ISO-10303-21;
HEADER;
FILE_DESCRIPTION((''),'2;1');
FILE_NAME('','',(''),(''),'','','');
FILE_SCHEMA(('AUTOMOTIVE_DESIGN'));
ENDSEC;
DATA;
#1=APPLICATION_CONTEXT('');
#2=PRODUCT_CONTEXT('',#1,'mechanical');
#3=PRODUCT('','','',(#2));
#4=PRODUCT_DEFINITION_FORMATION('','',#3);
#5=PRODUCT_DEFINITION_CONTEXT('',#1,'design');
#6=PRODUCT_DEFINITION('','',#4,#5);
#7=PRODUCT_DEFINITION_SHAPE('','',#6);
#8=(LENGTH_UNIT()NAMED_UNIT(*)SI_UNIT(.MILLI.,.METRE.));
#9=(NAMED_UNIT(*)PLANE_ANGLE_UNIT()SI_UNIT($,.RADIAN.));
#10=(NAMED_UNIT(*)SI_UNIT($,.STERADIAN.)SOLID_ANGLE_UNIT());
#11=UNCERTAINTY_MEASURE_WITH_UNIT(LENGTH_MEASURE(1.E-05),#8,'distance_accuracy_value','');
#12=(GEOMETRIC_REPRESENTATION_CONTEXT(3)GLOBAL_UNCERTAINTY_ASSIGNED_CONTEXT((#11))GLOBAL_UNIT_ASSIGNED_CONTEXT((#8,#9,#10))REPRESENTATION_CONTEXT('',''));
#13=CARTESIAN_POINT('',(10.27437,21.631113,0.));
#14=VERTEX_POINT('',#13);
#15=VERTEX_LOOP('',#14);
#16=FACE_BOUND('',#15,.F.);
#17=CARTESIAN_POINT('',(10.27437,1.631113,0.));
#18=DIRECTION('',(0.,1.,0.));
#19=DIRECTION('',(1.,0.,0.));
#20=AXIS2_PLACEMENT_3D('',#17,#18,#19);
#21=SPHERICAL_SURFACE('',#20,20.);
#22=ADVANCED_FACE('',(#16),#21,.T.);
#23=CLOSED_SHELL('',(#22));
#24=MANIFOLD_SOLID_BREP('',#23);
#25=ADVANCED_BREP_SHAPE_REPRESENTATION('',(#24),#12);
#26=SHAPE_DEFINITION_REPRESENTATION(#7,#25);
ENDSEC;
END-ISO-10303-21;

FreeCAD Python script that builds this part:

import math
import FreeCAD as App
import Part
import Sketcher

V = App.Vector
Q = App.Units.Quantity

doc = App.newDocument("Part")
params = doc.addObject("Spreadsheet::Sheet", "Params")
for row, (alias, value) in enumerate([
    ("sketch1_radius", "20 mm"),
    ("revolution_angle", "360 deg"),
], start=1):
    params.set(f"A{row}", alias)
    params.set(f"B{row}", "=" + value)
    params.setAlias(f"B{row}", alias)

body = doc.addObject("PartDesign::Body", "Body")

# Sketch on XY plane
sketch1 = doc.addObject("Sketcher::SketchObject", "Sketch")
body.addObject(sketch1)
sketch1.AttachmentSupport = (doc.XY_Plane, [""])
sketch1.MapMode = "FlatFace"
sketch1.addGeometry([
    Part.LineSegment(V(10.27437, 21.631113, 0), V(10.27437, -18.368887, 0)),
    Part.ArcOfCircle(Part.Circle(V(10.27437, 1.631113, 0), V(0, 0, 1), 20), math.radians(-90), math.radians(90)),
], False)
sketch1.addGeometry(Part.LineSegment(V(10.27437, 21.631113, 0), V(10.27437, -18.368887, 0)), True)  # axis
sketch1.addConstraint([
    Sketcher.Constraint("Coincident", 0, 1, 1, 2),
    Sketcher.Constraint("Coincident", 1, 1, 0, 2),
    Sketcher.Constraint("Vertical", 0),
    Sketcher.Constraint("Vertical", 2),
    Sketcher.Constraint("Coincident", 2, 1, 0, 1),
    Sketcher.Constraint("Vertical", 1, 3, 0, 1),
    Sketcher.Constraint("Equal", 0, 2),
    Sketcher.Constraint("Radius", 1, Q("20 mm")),
    Sketcher.Constraint("DistanceX", -1, 1, 1, 3, Q("10.27437 mm")),
    Sketcher.Constraint("DistanceY", -1, 1, 1, 3, Q("1.631113 mm")),
])
sketch1.setExpression("Constraints[7]", "Params.sketch1_radius")
revolution = doc.addObject("PartDesign::Revolution", "Revolution")
body.addObject(revolution)
revolution.Profile = sketch1
revolution.ReferenceAxis = (sketch1, ["Axis0"])
revolution.setExpression("Angle", "Params.revolution_angle")

doc.recompute()
